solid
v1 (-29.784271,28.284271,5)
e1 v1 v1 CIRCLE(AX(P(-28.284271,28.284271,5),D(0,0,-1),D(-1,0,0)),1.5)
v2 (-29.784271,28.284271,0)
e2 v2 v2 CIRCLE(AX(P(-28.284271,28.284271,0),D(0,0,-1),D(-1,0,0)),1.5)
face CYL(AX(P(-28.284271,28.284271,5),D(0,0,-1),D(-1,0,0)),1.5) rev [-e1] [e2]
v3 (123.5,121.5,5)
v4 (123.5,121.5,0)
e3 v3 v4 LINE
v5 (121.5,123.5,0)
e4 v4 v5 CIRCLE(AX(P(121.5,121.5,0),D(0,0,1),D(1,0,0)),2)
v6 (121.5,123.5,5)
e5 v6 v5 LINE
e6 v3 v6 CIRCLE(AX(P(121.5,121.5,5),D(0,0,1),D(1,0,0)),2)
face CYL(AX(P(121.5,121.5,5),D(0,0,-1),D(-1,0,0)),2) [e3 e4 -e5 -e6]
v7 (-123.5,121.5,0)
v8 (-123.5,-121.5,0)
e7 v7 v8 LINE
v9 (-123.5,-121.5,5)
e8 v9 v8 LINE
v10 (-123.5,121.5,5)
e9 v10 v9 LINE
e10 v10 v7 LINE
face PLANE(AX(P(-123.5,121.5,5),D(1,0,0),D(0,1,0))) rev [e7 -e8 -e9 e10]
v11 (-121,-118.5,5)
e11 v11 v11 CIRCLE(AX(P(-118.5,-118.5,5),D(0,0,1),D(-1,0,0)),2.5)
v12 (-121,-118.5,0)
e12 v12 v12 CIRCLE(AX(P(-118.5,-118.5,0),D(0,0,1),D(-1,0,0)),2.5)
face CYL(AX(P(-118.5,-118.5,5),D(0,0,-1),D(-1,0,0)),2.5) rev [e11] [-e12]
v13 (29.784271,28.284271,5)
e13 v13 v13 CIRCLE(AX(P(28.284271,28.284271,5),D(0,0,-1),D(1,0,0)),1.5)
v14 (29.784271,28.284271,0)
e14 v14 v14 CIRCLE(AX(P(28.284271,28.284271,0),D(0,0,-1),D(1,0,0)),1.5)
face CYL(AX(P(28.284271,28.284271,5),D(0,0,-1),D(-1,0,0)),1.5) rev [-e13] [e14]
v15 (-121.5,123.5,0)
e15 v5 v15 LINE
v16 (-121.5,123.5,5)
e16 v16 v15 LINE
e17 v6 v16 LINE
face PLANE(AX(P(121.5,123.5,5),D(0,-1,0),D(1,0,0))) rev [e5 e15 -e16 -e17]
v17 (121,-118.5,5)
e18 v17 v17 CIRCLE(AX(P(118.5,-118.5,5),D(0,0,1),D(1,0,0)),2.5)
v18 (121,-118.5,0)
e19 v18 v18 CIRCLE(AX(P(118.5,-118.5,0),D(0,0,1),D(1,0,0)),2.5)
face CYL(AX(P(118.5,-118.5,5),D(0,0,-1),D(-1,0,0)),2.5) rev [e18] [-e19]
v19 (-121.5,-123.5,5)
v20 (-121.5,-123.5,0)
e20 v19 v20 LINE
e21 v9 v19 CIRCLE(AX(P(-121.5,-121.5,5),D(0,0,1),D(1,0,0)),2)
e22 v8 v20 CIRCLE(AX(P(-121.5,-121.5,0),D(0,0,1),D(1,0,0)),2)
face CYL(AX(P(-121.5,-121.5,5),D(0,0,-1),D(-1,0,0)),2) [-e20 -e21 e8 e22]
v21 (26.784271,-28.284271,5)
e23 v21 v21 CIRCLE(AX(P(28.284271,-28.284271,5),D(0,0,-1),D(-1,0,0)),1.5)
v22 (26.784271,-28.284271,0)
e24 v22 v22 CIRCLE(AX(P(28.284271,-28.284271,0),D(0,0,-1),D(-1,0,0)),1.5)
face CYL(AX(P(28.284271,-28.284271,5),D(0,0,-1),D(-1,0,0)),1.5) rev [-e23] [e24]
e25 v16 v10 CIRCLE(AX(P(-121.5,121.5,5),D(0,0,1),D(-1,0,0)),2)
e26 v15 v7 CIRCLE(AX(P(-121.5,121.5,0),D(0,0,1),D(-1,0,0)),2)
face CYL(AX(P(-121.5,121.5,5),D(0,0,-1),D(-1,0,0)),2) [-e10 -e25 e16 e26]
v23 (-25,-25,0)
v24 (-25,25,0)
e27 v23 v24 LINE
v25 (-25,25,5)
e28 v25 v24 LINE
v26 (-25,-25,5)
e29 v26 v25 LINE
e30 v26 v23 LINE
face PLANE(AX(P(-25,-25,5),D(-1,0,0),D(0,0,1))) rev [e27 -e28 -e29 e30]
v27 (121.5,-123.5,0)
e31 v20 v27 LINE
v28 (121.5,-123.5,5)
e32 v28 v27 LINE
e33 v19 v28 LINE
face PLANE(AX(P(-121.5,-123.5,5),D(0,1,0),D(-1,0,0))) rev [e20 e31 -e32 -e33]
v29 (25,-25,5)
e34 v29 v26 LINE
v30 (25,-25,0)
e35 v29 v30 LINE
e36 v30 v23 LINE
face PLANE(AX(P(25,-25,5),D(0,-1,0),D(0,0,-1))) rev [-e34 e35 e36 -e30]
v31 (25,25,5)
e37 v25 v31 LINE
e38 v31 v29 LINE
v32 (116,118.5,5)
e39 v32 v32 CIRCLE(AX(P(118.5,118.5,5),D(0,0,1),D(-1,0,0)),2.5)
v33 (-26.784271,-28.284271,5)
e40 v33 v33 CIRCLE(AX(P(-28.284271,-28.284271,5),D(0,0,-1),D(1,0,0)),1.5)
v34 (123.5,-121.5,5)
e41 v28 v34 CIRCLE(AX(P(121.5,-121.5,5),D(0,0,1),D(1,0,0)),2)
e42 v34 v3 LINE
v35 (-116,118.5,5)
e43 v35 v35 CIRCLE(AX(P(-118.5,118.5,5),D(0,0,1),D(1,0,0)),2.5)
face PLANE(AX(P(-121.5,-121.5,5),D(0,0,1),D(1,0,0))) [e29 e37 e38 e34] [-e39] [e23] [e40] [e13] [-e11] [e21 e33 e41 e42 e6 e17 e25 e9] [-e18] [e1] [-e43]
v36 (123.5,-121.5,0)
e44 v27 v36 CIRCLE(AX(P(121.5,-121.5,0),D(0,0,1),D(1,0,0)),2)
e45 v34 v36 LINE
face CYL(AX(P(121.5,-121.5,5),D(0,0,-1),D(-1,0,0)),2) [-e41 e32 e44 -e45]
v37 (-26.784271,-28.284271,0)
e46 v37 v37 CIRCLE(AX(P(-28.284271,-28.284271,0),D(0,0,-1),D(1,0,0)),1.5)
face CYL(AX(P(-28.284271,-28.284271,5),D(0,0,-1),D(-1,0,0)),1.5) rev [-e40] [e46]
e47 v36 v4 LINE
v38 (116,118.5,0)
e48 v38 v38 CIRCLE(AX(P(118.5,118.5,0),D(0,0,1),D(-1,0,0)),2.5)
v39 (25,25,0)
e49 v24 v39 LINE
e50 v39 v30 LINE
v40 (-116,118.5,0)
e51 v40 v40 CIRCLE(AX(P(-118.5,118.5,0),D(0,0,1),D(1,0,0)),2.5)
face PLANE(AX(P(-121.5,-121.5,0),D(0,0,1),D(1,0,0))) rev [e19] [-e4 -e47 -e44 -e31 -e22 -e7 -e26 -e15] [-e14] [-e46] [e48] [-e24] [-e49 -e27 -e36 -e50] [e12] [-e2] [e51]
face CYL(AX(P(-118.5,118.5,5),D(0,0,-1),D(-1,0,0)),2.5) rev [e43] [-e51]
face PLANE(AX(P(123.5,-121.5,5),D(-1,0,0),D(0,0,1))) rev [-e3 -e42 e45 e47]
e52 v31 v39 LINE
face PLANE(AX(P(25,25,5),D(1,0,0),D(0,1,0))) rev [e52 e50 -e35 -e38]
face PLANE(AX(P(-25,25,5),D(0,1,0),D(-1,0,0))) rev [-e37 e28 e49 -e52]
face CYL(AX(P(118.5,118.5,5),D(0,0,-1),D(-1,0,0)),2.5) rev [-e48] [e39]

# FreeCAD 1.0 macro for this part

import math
import FreeCAD as App
import Part
import Sketcher

V = App.Vector
Q = App.Units.Quantity

doc = App.newDocument("Part")
body = doc.addObject("PartDesign::Body", "Body")

sketch1 = body.newObject("Sketcher::SketchObject", "Sketch")
sketch1.AttachmentSupport = (doc.getObject("XY_Plane"), [""])
sketch1.MapMode = "FlatFace"
sketch1.addGeometry(Part.LineSegment(V(-123.5, 121.5, 0), V(-123.5, -121.5, 0)), False)
sketch1.addGeometry(Part.ArcOfCircle(Part.Circle(V(-121.5, -121.5, 0), V(0, 0, 1), 2), math.radians(-180), math.radians(-90)), False)
sketch1.addGeometry(Part.LineSegment(V(-121.5, -123.5, 0), V(121.5, -123.5, 0)), False)
sketch1.addGeometry(Part.ArcOfCircle(Part.Circle(V(121.5, -121.5, 0), V(0, 0, 1), 2), math.radians(-90), math.radians(0)), False)
sketch1.addGeometry(Part.LineSegment(V(123.5, -121.5, 0), V(123.5, 121.5, 0)), False)
sketch1.addGeometry(Part.ArcOfCircle(Part.Circle(V(121.5, 121.5, 0), V(0, 0, 1), 2), math.radians(0), math.radians(90)), False)
sketch1.addGeometry(Part.LineSegment(V(121.5, 123.5, 0), V(-121.5, 123.5, 0)), False)
sketch1.addGeometry(Part.ArcOfCircle(Part.Circle(V(-121.5, 121.5, 0), V(0, 0, 1), 2), math.radians(90), math.radians(180)), False)
sketch1.addGeometry(Part.Circle(V(-118.5, -118.5, 0), V(0, 0, 1), 2.5), False)
sketch1.addGeometry(Part.Circle(V(118.5, -118.5, 0), V(0, 0, 1), 2.5), False)
sketch1.addGeometry(Part.Circle(V(-118.5, 118.5, 0), V(0, 0, 1), 2.5), False)
sketch1.addGeometry(Part.Circle(V(118.5, 118.5, 0), V(0, 0, 1), 2.5), False)
sketch1.addConstraint(Sketcher.Constraint("Tangent", 0, 2, 1, 1))
sketch1.addConstraint(Sketcher.Constraint("Tangent", 1, 2, 2, 1))
sketch1.addConstraint(Sketcher.Constraint("Tangent", 2, 2, 3, 1))
sketch1.addConstraint(Sketcher.Constraint("Tangent", 3, 2, 4, 1))
sketch1.addConstraint(Sketcher.Constraint("Tangent", 4, 2, 5, 1))
sketch1.addConstraint(Sketcher.Constraint("Tangent", 5, 2, 6, 1))
sketch1.addConstraint(Sketcher.Constraint("Tangent", 6, 2, 7, 1))
sketch1.addConstraint(Sketcher.Constraint("Tangent", 7, 2, 0, 1))
sketch1.addConstraint(Sketcher.Constraint("Vertical", 0))
sketch1.addConstraint(Sketcher.Constraint("Horizontal", 2))
sketch1.addConstraint(Sketcher.Constraint("Vertical", 4))
sketch1.addConstraint(Sketcher.Constraint("Horizontal", 6))
sketch1.addConstraint(Sketcher.Constraint("Equal", 1, 3))
sketch1.addConstraint(Sketcher.Constraint("Equal", 3, 5))
sketch1.addConstraint(Sketcher.Constraint("Equal", 5, 7))
sketch1.addConstraint(Sketcher.Constraint("Equal", 8, 9))
sketch1.addConstraint(Sketcher.Constraint("Equal", 9, 10))
sketch1.addConstraint(Sketcher.Constraint("Equal", 10, 11))
sketch1.addConstraint(Sketcher.Constraint("Symmetric", 1, 3, 5, 3, -1, 1))
sketch1.addConstraint(Sketcher.Constraint("Symmetric", 9, 3, 10, 3, -1, 1))
sketch1.addConstraint(Sketcher.Constraint("Symmetric", 8, 3, 11, 3, -1, 1))
sketch1.addConstraint(Sketcher.Constraint("Symmetric", 8, 3, 9, 3, -2))
sketch1.addConstraint(Sketcher.Constraint("Equal", 6, 0))
sketch1.addConstraint(Sketcher.Constraint("Diameter", 8, Q("5 mm")))
sketch1.addConstraint(Sketcher.Constraint("Radius", 1, Q("2 mm")))
sketch1.addConstraint(Sketcher.Constraint("DistanceX", 2, 1, 2, 2, Q("243 mm")))
sketch1.addConstraint(Sketcher.Constraint("DistanceX", 1, 3, 8, 3, Q("3 mm")))
sketch1.addConstraint(Sketcher.Constraint("DistanceY", 1, 3, 8, 3, Q("3 mm")))
pad1 = body.newObject("PartDesign::Pad", "Pad")
pad1.Profile = sketch1
pad1.Length = 5

sketch2 = body.newObject("Sketcher::SketchObject", "Sketch001")
sketch2.AttachmentSupport = (doc.getObject("XY_Plane"), [""])
sketch2.MapMode = "FlatFace"
sketch2.addGeometry(Part.Circle(V(-28.3, 28.3, 0), V(0, 0, 1), 1.5), False)
sketch2.addGeometry(Part.Circle(V(-28.3, -28.3, 0), V(0, 0, 1), 1.5), False)
sketch2.addGeometry(Part.Circle(V(28.3, -28.3, 0), V(0, 0, 1), 1.5), False)
sketch2.addGeometry(Part.Circle(V(28.3, 28.3, 0), V(0, 0, 1), 1.5), False)
sketch2.addGeometry(Part.LineSegment(V(25, 25, 0), V(25, -25, 0)), False)
sketch2.addGeometry(Part.LineSegment(V(25, -25, 0), V(-25, -25, 0)), False)
sketch2.addGeometry(Part.LineSegment(V(-25, -25, 0), V(-25, 25, 0)), False)
sketch2.addGeometry(Part.LineSegment(V(-25, 25, 0), V(25, 25, 0)), False)
sketch2.addConstraint(Sketcher.Constraint("Coincident", 4, 2, 5, 1))
sketch2.addConstraint(Sketcher.Constraint("Coincident", 5, 2, 6, 1))
sketch2.addConstraint(Sketcher.Constraint("Coincident", 6, 2, 7, 1))
sketch2.addConstraint(Sketcher.Constraint("Coincident", 7, 2, 4, 1))
sketch2.addConstraint(Sketcher.Constraint("Vertical", 4))
sketch2.addConstraint(Sketcher.Constraint("Horizontal", 5))
sketch2.addConstraint(Sketcher.Constraint("Vertical", 6))
sketch2.addConstraint(Sketcher.Constraint("Horizontal", 7))
sketch2.addConstraint(Sketcher.Constraint("Equal", 0, 1))
sketch2.addConstraint(Sketcher.Constraint("Equal", 1, 2))
sketch2.addConstraint(Sketcher.Constraint("Equal", 2, 3))
sketch2.addConstraint(Sketcher.Constraint("Symmetric", 0, 3, 2, 3, -1, 1))
sketch2.addConstraint(Sketcher.Constraint("Symmetric", 1, 3, 3, 3, -1, 1))
sketch2.addConstraint(Sketcher.Constraint("Symmetric", 4, 2, 6, 2, -1, 1))
sketch2.addConstraint(Sketcher.Constraint("Symmetric", 1, 3, 2, 3, -2))
sketch2.addConstraint(Sketcher.Constraint("Equal", 7, 4))
sketch2.addConstraint(Sketcher.Constraint("Diameter", 0, Q("3 mm")))
sketch2.addConstraint(Sketcher.Constraint("DistanceX", 5, 2, 5, 1, Q("50 mm")))
sketch2.addConstraint(Sketcher.Constraint("DistanceX", 0, 3, -1, 1, Q("28.284271 mm")))
sketch2.addConstraint(Sketcher.Constraint("DistanceY", -1, 1, 0, 3, Q("28.284271 mm")))
pocket1 = body.newObject("PartDesign::Pocket", "Pocket")
pocket1.Profile = sketch2
pocket1.Length = 5
pocket1.Reversed = True

doc.recompute()
